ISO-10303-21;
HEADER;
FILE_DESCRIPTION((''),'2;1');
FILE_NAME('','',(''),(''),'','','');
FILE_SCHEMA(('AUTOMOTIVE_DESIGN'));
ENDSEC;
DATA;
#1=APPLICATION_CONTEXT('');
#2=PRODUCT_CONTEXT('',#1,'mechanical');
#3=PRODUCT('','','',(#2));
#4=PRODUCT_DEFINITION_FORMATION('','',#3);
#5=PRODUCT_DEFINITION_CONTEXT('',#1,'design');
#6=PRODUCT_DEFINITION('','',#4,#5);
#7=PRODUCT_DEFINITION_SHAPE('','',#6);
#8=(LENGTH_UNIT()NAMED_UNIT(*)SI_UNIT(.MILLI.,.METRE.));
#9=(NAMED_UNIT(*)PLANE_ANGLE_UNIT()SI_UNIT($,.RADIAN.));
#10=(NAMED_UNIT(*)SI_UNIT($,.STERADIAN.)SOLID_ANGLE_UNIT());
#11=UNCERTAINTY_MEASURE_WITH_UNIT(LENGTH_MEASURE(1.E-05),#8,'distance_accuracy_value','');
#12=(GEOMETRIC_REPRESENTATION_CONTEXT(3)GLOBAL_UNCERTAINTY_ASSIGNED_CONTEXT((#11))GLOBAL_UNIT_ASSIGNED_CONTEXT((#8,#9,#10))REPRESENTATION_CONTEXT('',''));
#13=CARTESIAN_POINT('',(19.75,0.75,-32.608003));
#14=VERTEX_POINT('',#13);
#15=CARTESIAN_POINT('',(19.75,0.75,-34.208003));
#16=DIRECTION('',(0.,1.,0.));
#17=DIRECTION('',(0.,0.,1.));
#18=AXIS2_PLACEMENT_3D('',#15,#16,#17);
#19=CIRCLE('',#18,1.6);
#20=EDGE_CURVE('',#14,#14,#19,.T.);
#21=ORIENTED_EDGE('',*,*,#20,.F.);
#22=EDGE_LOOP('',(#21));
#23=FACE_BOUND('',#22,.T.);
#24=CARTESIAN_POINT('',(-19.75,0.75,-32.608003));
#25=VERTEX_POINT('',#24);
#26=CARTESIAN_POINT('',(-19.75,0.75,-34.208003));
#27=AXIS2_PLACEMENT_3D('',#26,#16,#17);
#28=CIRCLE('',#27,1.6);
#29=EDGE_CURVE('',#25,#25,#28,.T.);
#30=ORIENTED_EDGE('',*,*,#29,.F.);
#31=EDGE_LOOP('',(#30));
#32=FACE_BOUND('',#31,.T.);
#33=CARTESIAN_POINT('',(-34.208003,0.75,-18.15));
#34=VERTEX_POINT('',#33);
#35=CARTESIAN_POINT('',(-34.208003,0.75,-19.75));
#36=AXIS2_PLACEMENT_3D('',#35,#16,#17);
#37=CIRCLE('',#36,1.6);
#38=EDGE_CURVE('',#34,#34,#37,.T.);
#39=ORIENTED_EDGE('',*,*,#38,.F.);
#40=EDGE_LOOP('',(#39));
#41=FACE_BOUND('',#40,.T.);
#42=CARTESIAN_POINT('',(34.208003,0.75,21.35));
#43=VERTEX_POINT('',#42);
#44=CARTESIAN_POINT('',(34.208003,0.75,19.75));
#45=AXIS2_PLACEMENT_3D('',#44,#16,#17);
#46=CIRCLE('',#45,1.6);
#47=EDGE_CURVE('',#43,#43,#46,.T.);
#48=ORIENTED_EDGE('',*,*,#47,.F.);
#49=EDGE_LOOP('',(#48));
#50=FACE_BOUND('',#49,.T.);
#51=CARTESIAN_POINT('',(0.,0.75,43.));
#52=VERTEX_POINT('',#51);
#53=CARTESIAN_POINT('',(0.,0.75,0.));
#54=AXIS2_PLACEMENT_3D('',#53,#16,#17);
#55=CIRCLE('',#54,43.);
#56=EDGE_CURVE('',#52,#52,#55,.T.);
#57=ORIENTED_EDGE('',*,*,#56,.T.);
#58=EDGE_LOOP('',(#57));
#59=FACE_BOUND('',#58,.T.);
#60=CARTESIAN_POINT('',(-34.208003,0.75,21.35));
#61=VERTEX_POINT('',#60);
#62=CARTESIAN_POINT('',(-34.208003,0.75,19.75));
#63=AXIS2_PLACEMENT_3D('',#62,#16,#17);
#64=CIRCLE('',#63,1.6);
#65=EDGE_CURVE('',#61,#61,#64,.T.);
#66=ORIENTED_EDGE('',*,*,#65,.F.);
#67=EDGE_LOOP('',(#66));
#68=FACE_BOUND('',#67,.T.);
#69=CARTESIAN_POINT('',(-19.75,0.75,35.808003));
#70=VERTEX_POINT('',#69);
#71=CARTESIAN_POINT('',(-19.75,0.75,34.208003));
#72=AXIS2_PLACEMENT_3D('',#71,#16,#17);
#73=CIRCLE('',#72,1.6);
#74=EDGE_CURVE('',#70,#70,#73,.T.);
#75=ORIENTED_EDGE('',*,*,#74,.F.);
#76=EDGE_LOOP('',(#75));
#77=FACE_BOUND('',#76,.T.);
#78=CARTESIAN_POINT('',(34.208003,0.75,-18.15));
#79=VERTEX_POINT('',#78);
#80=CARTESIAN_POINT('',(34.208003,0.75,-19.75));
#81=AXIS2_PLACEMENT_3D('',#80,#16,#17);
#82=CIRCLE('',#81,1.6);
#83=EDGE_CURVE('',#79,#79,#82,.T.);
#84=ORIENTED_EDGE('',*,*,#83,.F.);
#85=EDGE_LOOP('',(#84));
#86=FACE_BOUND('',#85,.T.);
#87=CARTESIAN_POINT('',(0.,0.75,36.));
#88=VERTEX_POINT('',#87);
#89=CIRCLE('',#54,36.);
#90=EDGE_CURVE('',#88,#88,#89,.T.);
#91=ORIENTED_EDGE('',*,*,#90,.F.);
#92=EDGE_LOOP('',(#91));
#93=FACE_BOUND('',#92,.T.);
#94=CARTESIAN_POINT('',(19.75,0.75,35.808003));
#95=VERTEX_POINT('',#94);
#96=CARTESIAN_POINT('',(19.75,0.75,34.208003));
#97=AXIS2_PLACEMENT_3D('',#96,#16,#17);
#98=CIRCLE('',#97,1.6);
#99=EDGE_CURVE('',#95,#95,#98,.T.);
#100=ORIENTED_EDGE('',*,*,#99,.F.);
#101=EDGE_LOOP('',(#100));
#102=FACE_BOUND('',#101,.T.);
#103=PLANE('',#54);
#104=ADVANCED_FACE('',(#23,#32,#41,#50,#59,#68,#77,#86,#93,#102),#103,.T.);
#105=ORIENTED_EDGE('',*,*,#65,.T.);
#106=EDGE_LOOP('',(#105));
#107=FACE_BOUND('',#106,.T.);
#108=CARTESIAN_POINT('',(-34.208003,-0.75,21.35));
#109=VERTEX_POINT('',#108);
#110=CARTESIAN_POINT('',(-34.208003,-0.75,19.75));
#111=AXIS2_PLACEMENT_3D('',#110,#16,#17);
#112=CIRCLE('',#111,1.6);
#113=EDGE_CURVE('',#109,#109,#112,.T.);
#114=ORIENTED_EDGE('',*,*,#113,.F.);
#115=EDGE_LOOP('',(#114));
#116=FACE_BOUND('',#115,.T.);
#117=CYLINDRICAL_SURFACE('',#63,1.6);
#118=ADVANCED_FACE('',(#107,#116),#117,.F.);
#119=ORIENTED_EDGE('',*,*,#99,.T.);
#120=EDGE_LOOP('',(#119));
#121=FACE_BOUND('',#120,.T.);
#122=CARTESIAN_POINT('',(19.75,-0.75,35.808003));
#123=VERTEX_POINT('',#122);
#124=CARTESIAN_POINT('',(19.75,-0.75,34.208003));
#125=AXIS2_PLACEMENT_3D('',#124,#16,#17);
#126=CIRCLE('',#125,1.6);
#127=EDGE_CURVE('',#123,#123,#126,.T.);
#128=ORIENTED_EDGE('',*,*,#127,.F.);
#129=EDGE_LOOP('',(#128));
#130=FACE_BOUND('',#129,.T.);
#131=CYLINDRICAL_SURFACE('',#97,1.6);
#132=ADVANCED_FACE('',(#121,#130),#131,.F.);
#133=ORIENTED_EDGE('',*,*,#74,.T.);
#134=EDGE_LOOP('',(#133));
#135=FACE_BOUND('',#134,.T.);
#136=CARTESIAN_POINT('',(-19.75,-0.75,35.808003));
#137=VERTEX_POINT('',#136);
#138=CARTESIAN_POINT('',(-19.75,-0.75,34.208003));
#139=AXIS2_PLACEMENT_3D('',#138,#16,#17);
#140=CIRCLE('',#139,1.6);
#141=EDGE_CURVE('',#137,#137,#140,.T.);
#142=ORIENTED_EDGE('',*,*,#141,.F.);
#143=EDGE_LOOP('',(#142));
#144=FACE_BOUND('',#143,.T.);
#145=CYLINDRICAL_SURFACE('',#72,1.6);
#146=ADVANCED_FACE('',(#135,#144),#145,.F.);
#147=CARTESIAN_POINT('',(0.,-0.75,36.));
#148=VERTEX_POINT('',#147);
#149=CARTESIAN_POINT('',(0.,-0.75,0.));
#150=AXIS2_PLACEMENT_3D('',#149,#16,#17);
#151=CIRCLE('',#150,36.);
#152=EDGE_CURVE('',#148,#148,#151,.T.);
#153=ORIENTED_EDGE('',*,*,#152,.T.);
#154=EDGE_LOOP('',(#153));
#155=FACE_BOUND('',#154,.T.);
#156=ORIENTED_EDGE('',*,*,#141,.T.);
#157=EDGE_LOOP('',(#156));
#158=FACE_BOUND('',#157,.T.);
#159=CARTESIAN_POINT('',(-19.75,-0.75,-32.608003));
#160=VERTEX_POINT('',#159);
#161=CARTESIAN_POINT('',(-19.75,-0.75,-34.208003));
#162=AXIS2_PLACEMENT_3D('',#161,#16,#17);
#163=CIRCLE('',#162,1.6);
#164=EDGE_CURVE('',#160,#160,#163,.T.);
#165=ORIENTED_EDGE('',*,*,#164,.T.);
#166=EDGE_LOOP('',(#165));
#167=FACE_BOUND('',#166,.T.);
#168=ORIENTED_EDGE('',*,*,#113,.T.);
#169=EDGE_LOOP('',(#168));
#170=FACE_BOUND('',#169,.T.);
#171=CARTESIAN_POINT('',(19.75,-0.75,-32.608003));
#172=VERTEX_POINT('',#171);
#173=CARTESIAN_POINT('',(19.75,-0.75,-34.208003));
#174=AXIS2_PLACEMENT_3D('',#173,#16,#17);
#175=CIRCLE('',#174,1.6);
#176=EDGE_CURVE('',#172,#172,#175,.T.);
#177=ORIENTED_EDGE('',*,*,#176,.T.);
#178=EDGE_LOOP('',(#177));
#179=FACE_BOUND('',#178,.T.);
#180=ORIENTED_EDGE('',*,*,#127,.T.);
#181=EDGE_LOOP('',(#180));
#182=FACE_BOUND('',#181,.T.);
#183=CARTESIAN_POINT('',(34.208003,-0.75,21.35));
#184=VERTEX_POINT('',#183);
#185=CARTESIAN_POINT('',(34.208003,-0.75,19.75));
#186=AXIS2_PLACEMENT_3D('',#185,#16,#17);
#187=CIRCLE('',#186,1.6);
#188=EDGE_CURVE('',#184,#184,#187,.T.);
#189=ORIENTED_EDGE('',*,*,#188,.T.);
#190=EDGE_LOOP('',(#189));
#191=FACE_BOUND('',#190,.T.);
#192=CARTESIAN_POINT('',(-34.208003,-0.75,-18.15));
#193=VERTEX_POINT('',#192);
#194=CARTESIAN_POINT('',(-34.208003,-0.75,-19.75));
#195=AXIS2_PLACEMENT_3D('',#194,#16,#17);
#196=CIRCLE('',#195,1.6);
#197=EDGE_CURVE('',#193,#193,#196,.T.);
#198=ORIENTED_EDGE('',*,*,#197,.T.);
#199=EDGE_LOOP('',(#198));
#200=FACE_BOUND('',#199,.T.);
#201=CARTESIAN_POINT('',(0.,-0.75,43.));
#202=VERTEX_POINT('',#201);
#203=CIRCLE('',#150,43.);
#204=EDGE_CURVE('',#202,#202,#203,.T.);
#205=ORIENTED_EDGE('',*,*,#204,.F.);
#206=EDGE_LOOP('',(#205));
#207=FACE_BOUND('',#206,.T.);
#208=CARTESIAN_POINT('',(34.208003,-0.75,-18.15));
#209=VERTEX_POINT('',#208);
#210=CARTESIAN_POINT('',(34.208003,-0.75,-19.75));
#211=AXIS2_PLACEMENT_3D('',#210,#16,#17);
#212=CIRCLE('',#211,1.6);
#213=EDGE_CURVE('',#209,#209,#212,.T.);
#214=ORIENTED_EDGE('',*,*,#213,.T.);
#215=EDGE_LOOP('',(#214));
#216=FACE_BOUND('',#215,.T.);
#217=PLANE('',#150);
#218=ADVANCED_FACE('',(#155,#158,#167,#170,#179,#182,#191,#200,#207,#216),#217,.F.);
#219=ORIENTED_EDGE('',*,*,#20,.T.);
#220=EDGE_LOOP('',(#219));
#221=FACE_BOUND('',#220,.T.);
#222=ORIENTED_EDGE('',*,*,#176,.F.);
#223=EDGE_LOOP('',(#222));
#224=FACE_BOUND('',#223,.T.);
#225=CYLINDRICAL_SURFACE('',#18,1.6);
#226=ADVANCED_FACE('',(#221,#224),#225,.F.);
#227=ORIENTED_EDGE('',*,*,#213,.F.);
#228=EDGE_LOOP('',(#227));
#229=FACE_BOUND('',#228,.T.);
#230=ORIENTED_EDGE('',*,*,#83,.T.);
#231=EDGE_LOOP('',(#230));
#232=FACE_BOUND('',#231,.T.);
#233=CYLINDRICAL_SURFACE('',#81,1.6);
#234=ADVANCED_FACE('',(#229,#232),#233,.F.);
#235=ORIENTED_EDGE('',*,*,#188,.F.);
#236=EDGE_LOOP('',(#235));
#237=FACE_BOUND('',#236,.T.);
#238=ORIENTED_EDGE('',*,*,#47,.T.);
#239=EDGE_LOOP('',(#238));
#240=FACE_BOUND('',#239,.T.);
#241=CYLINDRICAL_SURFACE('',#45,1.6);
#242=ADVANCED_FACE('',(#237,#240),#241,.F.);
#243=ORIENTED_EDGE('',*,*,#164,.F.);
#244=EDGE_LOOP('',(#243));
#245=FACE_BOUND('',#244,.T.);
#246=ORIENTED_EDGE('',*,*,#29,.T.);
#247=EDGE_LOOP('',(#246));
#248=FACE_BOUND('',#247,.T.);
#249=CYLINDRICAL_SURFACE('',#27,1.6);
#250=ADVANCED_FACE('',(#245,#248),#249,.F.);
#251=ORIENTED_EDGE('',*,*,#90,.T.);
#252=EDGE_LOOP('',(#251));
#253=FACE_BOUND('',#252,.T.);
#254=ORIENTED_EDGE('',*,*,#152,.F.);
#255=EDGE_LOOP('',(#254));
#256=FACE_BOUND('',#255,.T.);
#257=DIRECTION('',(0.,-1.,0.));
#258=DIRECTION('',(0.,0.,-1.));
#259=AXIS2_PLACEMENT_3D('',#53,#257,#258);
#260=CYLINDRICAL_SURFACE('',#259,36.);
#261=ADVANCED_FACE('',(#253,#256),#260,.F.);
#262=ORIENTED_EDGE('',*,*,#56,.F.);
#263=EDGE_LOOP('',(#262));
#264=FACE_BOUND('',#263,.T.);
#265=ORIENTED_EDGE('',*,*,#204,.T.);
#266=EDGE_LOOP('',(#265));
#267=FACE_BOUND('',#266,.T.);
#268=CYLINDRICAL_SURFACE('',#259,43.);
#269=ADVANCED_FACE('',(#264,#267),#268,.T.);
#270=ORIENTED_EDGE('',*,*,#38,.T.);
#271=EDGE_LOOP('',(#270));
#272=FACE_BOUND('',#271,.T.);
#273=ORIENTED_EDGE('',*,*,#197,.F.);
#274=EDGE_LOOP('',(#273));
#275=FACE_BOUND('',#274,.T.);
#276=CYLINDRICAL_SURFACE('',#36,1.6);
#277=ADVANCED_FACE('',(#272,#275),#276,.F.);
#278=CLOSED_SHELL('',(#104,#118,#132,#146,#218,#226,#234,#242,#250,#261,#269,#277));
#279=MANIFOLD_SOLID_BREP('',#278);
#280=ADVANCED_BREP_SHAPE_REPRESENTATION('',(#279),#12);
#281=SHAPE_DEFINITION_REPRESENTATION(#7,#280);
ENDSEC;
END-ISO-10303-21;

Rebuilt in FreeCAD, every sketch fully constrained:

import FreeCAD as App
import Part
import Sketcher

V = App.Vector

doc = App.newDocument("Part")
body = doc.addObject("PartDesign::Body", "Body")

sketch1 = body.newObject("Sketcher::SketchObject", "Sketch")
sketch1.AttachmentSupport = (doc.getObject("XZ_Plane"), [""])
sketch1.MapMode = "FlatFace"
sketch1.addGeometry(Part.Circle(V(0, 0, 0), V(0, 0, 1), 43), False)
sketch1.addGeometry(Part.Circle(V(0, 0, 0), V(0, 0, 1), 36), False)
sketch1.addConstraint(Sketcher.Constraint("Coincident", 0, 3, -1, 1))
sketch1.addConstraint(Sketcher.Constraint("Coincident", 1, 3, -1, 1))
sketch1.addConstraint(Sketcher.Constraint("Diameter", 0, 86.0))
sketch1.addConstraint(Sketcher.Constraint("Diameter", 1, 72.0))
pad1 = body.newObject("PartDesign::Pad", "Pad")
pad1.Profile = sketch1
pad1.Length = 1.5
pad1.Midplane = True

sketch2 = body.newObject("Sketcher::SketchObject", "Sketch001")
sketch2.AttachmentSupport = (doc.getObject("XZ_Plane"), [""])
sketch2.MapMode = "FlatFace"
sketch2.AttachmentOffset = App.Placement(V(0, 0, -0.75), App.Rotation())
sketch2.addGeometry(Part.Circle(V(-34.2, 19.8, 0), V(0, 0, 1), 1.6), False)
sketch2.addGeometry(Part.Circle(V(-34.2, -19.8, 0), V(0, 0, 1), 1.6), False)
sketch2.addGeometry(Part.Circle(V(-19.8, -34.2, 0), V(0, 0, 1), 1.6), False)
sketch2.addGeometry(Part.Circle(V(19.8, -34.2, 0), V(0, 0, 1), 1.6), False)
sketch2.addGeometry(Part.Circle(V(34.2, -19.8, 0), V(0, 0, 1), 1.6), False)
sketch2.addGeometry(Part.Circle(V(34.2, 19.8, 0), V(0, 0, 1), 1.6), False)
sketch2.addGeometry(Part.Circle(V(19.8, 34.2, 0), V(0, 0, 1), 1.6), False)
sketch2.addGeometry(Part.Circle(V(-19.8, 34.2, 0), V(0, 0, 1), 1.6), False)
sketch2.addGeometry(Part.Circle(V(0, 0, 0), V(0, 0, 1), 1.6), False)
sketch2.addConstraint(Sketcher.Constraint("Coincident", 8, 3, -1, 1))
sketch2.addConstraint(Sketcher.Constraint("Equal", 0, 1))
sketch2.addConstraint(Sketcher.Constraint("Equal", 1, 2))
sketch2.addConstraint(Sketcher.Constraint("Equal", 2, 3))
sketch2.addConstraint(Sketcher.Constraint("Equal", 3, 4))
sketch2.addConstraint(Sketcher.Constraint("Equal", 4, 5))
sketch2.addConstraint(Sketcher.Constraint("Equal", 5, 6))
sketch2.addConstraint(Sketcher.Constraint("Equal", 6, 7))
sketch2.addConstraint(Sketcher.Constraint("Equal", 7, 8))
sketch2.addConstraint(Sketcher.Constraint("Symmetric", 0, 3, 4, 3, -1, 1))
sketch2.addConstraint(Sketcher.Constraint("Symmetric", 1, 3, 5, 3, -1, 1))
sketch2.addConstraint(Sketcher.Constraint("Symmetric", 2, 3, 6, 3, -1, 1))
sketch2.addConstraint(Sketcher.Constraint("Symmetric", 3, 3, 7, 3, -1, 1))
sketch2.addConstraint(Sketcher.Constraint("Symmetric", 2, 3, 3, 3, -2))
sketch2.addConstraint(Sketcher.Constraint("Symmetric", 1, 3, 4, 3, -2))
sketch2.addConstraint(Sketcher.Constraint("Diameter", 0, 3.2))
sketch2.addConstraint(Sketcher.Constraint("DistanceY", 1, 3, 0, 3, 39.5))
sketch2.addConstraint(Sketcher.Constraint("DistanceX", 2, 3, 3, 3, 39.5))
sketch2.addConstraint(Sketcher.Constraint("DistanceX", 0, 3, -1, 1, 34.208003))
sketch2.addConstraint(Sketcher.Constraint("DistanceY", 2, 3, -1, 1, 34.208003))
doc.recompute()
hole = body.newObject("PartDesign::Hole", "Hole")
hole.Profile = sketch2
hole.ThreadType = "None"
hole.Diameter = 3.2
hole.DepthType = "ThroughAll"
hole.Reversed = True

doc.recompute()
